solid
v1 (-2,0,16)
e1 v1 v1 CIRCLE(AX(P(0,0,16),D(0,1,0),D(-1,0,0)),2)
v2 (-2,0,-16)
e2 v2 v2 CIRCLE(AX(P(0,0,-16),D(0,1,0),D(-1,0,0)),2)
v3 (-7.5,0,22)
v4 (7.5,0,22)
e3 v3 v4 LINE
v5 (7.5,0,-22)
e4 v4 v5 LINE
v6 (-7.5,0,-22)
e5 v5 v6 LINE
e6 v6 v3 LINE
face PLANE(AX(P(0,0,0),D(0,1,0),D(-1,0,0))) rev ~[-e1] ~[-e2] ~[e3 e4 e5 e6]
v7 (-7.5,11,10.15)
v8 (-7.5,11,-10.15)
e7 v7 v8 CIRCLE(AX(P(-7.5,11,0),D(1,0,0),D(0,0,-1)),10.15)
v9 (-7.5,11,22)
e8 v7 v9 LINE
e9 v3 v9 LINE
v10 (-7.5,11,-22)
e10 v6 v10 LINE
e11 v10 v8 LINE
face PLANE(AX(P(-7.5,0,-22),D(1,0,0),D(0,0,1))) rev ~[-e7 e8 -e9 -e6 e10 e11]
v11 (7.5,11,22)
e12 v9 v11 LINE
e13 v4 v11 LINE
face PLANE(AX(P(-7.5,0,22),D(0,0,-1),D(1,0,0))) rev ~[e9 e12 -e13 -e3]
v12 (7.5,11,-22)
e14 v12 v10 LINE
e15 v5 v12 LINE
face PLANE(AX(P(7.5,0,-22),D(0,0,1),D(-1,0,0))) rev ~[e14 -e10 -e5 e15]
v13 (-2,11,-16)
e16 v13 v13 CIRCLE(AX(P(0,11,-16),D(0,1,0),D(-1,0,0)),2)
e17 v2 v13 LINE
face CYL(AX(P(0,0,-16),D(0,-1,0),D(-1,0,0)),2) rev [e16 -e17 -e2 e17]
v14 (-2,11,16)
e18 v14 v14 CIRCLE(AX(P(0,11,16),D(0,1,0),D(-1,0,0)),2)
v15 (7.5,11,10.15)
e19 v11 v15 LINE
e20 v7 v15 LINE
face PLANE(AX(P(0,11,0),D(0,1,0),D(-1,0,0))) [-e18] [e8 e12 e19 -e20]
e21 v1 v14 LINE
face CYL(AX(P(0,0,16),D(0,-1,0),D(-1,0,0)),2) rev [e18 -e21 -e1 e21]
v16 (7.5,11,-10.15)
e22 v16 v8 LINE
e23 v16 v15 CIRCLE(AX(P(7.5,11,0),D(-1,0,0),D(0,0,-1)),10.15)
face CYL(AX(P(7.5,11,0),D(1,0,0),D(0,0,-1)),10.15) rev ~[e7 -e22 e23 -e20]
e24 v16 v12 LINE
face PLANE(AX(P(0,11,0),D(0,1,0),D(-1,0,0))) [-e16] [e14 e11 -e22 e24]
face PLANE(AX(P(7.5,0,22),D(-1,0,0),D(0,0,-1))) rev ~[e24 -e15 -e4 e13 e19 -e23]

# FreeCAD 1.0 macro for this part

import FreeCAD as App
import Part
import Sketcher

V = App.Vector


def add_polygon(sketch, points):
    """Adds a closed chain of lines whose ends are joined by coincident constraints."""
    first, n = sketch.GeometryCount, len(points)
    for a, b in zip(points, points[1:] + points[:1]):
        sketch.addGeometry(Part.LineSegment(App.Vector(*a, 0), App.Vector(*b, 0)), False)
    for i in range(n):
        sketch.addConstraint(Sketcher.Constraint("Coincident", first + i, 2, first + (i + 1) % n, 1))

doc = App.newDocument("Part")
body = doc.addObject("PartDesign::Body", "Body")

# Sketch on XZ plane
sketch1 = body.newObject("Sketcher::SketchObject", "Sketch")
sketch1.AttachmentSupport = (doc.getObject("XZ_Plane"), [""])
sketch1.MapMode = "FlatFace"
add_polygon(sketch1, [(-7.5, -22), (-7.5, 22), (7.5, 22), (7.5, -22)])  # lines 0-3
sketch1.addGeometry(Part.Circle(V(0, -16, 0), V(0, 0, 1), 2), False)  # 4
sketch1.addGeometry(Part.Circle(V(0, 16, 0), V(0, 0, 1), 2), False)  # 5
sketch1.addConstraint([
    Sketcher.Constraint("Vertical", 0),
    Sketcher.Constraint("Horizontal", 1),
    Sketcher.Constraint("Vertical", 2),
    Sketcher.Constraint("Horizontal", 3),
    Sketcher.Constraint("Equal", 4, 5),
    Sketcher.Constraint("Symmetric", 4, 3, 5, 3, -1, 1),
    Sketcher.Constraint("Symmetric", 0, 2, 2, 2, -1, 1),
    Sketcher.Constraint("PointOnObject", 4, 3, -2),
    Sketcher.Constraint("Diameter", 4, 4.0),
    Sketcher.Constraint("DistanceX", 1, 1, 1, 2, 15.0),
    Sketcher.Constraint("DistanceY", 0, 1, 0, 2, 44.0),
    Sketcher.Constraint("DistanceY", 4, 3, -1, 1, 16.0),
])
pad1 = body.newObject("PartDesign::Pad", "Pad")
pad1.Profile = sketch1
pad1.Length = 11
pad1.Reversed = True

# Sketch on YZ plane
sketch2 = body.newObject("Sketcher::SketchObject", "Sketch001")
sketch2.AttachmentSupport = (doc.getObject("YZ_Plane"), [""])
sketch2.MapMode = "FlatFace"
sketch2.AttachmentOffset = App.Placement(V(0, 0, 7.5), App.Rotation())
sketch2.addGeometry(Part.Circle(V(11, 0, 0), V(0, 0, 1), 10), False)
sketch2.addConstraint([
    Sketcher.Constraint("PointOnObject", 0, 3, -1),
    Sketcher.Constraint("Diameter", 0, 20.3),
    Sketcher.Constraint("DistanceX", -1, 1, 0, 3, 11.0),
])
pocket1 = body.newObject("PartDesign::Pocket", "Pocket")
pocket1.Profile = sketch2
pocket1.Type = "ThroughAll"

doc.recompute()
